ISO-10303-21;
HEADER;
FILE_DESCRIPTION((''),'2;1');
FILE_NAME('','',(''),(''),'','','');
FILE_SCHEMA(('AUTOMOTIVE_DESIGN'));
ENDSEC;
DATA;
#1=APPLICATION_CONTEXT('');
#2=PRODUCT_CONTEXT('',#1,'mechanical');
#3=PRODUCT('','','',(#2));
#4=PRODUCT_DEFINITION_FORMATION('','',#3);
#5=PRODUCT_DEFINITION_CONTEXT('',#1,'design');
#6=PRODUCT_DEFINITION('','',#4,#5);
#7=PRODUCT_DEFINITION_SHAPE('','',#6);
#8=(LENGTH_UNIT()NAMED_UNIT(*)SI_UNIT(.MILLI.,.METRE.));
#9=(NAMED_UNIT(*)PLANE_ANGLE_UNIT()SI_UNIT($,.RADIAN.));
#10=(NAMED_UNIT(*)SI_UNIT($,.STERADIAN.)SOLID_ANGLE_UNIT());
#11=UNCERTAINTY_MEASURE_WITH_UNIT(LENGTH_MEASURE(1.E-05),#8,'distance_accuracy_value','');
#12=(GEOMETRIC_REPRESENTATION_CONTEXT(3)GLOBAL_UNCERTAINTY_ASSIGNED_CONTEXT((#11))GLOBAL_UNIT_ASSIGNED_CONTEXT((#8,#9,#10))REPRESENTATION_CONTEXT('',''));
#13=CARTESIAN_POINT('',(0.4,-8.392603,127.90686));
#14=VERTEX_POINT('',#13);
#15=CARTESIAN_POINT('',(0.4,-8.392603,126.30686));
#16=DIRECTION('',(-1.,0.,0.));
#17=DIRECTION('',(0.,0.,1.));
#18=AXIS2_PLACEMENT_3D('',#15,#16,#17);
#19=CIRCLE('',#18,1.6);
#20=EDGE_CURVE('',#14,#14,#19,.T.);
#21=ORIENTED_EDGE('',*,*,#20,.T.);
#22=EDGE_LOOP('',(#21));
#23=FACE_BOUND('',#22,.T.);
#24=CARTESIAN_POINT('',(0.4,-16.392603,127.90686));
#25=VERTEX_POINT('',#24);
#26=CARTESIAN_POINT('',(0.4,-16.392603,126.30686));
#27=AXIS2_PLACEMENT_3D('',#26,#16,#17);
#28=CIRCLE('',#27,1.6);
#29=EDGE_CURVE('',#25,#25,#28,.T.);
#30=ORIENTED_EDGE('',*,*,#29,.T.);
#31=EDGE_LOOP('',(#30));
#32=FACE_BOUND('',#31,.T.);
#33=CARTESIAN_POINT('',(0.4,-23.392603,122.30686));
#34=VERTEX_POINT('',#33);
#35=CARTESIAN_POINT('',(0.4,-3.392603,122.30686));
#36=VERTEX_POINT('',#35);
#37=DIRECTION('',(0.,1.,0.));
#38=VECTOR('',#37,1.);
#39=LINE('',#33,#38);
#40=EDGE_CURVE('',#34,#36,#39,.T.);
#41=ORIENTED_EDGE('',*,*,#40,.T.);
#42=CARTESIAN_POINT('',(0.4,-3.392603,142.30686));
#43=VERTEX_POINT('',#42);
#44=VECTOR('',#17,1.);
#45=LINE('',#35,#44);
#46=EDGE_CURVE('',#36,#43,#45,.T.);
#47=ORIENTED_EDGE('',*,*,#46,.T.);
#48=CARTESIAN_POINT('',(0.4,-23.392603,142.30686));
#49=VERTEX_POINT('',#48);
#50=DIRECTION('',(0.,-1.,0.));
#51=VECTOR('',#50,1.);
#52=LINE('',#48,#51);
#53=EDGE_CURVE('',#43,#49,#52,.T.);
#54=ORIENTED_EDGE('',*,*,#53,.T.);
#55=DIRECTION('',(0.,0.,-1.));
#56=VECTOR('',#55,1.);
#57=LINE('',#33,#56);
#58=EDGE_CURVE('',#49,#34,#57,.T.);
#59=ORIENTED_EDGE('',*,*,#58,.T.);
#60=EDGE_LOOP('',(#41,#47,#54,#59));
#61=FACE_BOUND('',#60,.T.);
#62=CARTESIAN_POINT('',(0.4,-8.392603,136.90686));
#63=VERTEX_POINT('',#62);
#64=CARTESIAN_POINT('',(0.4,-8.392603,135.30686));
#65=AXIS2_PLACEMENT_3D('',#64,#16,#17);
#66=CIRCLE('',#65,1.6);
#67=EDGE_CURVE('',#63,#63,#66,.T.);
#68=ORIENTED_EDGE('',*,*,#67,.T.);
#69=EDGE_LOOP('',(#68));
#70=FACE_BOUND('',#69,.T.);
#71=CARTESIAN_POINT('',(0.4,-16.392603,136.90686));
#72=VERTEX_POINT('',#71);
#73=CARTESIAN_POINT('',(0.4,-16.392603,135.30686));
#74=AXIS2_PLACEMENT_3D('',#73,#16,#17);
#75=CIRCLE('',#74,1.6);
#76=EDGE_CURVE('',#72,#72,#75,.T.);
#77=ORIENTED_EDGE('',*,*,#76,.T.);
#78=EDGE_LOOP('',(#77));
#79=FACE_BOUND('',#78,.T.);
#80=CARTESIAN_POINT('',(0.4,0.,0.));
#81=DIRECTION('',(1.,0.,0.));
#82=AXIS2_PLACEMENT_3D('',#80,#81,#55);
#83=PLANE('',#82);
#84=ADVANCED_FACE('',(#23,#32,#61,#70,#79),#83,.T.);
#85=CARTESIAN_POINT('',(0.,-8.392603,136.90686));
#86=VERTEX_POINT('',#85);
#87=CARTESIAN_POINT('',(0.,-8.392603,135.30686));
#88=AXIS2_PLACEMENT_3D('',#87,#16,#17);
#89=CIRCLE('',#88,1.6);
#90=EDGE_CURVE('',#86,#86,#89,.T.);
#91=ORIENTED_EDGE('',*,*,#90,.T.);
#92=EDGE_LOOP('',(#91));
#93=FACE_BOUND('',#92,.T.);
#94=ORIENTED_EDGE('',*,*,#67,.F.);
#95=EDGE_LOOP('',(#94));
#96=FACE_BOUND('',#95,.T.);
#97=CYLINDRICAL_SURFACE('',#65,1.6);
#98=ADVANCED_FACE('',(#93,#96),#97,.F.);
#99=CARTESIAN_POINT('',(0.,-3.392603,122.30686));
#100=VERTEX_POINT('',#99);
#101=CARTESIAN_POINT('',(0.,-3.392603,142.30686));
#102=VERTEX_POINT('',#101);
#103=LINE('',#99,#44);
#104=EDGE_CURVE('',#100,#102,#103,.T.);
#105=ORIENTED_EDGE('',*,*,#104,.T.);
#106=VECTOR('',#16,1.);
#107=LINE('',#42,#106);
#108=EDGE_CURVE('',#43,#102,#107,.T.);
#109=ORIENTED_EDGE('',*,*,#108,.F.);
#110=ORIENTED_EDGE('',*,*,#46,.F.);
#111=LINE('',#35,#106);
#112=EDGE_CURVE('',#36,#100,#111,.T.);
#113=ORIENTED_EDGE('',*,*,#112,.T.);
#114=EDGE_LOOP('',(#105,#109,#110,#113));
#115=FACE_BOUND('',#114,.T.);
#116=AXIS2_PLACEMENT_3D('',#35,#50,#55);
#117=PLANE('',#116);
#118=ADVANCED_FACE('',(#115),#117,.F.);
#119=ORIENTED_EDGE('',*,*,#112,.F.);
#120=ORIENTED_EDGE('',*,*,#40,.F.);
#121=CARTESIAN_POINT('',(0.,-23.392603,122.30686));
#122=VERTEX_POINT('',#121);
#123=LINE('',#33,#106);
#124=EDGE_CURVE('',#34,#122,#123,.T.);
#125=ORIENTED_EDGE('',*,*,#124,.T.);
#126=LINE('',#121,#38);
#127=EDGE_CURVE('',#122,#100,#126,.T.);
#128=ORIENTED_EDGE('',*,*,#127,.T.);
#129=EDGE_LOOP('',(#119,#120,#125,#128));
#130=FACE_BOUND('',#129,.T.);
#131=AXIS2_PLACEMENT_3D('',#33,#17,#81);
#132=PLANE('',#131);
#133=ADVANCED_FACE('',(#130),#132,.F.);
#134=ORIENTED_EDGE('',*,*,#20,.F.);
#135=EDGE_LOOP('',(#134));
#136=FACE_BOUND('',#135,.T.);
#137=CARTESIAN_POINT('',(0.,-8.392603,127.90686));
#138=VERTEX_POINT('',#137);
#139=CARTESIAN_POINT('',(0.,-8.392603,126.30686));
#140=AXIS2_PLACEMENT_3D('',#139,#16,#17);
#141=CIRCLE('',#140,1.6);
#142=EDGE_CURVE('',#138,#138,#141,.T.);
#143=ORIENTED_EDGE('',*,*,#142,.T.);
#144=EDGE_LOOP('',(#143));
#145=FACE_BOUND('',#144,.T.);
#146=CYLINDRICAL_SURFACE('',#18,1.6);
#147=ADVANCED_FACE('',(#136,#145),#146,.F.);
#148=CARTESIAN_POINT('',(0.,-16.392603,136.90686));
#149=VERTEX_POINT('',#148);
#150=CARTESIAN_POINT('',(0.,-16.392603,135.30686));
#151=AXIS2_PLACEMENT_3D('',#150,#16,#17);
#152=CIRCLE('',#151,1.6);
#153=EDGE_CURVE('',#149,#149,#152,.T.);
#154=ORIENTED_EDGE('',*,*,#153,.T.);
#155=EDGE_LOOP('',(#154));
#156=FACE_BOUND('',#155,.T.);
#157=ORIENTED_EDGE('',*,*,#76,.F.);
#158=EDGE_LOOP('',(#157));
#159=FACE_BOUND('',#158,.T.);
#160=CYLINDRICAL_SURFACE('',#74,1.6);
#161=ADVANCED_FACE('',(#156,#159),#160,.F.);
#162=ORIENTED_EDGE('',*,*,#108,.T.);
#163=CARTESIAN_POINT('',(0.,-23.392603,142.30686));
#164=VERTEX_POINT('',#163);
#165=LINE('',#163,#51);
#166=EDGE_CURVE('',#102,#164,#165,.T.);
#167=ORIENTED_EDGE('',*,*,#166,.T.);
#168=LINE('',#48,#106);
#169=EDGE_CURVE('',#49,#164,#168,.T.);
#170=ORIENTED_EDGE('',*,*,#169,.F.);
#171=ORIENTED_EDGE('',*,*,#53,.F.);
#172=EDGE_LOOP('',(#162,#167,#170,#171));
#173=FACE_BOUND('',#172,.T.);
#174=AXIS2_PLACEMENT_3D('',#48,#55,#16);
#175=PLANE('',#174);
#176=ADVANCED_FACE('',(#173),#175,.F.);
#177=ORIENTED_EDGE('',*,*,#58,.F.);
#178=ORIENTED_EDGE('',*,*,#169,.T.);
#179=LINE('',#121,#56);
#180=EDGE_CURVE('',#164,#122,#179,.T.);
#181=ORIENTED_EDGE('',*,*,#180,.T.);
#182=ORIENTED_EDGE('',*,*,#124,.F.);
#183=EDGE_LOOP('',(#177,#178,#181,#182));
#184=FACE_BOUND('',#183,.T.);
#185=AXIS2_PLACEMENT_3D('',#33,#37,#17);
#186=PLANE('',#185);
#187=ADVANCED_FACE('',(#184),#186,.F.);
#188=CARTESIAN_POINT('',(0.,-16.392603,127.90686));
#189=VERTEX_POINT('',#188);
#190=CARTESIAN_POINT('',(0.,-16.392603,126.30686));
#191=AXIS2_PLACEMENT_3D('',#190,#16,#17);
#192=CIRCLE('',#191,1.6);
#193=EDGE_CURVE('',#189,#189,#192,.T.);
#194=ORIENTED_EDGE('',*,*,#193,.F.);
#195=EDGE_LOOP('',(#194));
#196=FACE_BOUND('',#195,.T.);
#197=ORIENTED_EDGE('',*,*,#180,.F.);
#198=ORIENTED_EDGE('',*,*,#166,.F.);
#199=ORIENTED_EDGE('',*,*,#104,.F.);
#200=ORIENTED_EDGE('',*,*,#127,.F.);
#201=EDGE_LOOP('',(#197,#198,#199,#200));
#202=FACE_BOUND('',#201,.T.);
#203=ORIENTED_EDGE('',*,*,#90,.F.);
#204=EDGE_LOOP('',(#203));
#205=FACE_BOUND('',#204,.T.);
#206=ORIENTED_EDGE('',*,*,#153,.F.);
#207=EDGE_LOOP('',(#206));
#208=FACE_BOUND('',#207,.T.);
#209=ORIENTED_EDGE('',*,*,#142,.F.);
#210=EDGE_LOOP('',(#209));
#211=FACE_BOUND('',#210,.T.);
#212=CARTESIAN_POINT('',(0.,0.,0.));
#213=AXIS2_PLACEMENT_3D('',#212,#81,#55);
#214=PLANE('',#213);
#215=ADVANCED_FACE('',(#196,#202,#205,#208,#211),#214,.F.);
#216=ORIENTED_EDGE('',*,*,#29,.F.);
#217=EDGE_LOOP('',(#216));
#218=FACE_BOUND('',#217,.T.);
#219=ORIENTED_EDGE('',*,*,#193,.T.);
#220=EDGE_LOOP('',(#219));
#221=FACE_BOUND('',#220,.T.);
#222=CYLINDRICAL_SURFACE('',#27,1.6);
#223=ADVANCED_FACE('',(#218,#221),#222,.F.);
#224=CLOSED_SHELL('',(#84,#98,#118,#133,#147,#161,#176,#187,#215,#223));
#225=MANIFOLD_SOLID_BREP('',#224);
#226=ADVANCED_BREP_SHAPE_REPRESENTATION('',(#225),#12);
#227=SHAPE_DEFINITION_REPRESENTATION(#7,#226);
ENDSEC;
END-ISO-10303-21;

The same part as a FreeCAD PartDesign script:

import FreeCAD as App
import Part
import Sketcher
from FreeCAD import Vector

doc = App.newDocument("Part")
body = doc.addObject("PartDesign::Body", "Body")

# Sketch on YZ plane
sketch1 = doc.addObject("Sketcher::SketchObject", "Sketch")
body.addObject(sketch1)
sketch1.AttachmentSupport = (doc.YZ_Plane, [""])
sketch1.MapMode = "FlatFace"
sketch1.addGeometry([
    Part.LineSegment(Vector(-3, 142, 0), Vector(-23, 142, 0)),
    Part.LineSegment(Vector(-23, 142, 0), Vector(-23, 122, 0)),
    Part.LineSegment(Vector(-23, 122, 0), Vector(-3, 122, 0)),
    Part.LineSegment(Vector(-3, 122, 0), Vector(-3, 142, 0)),
], False)
sketch1.addConstraint([
    Sketcher.Constraint("Coincident", 0, 2, 1, 1),
    Sketcher.Constraint("Coincident", 1, 2, 2, 1),
    Sketcher.Constraint("Coincident", 2, 2, 3, 1),
    Sketcher.Constraint("Coincident", 3, 2, 0, 1),
    Sketcher.Constraint("Horizontal", 0),
    Sketcher.Constraint("Vertical", 1),
    Sketcher.Constraint("Horizontal", 2),
    Sketcher.Constraint("Vertical", 3),
    Sketcher.Constraint("Equal", 2, 1),
    Sketcher.Constraint("DistanceX", 0, 2, 0, 1, 20.0),
    Sketcher.Constraint("DistanceY", -1, 1, 0, 2, 142.30686),
    Sketcher.Constraint("DistanceX", 0, 2, -1, 1, 23.392603),
])
pad1 = doc.addObject("PartDesign::Pad", "Pad")
body.addObject(pad1)
pad1.Profile = sketch1
pad1.Length = 0.4

# Sketch on YZ plane
sketch2 = doc.addObject("Sketcher::SketchObject", "Sketch001")
body.addObject(sketch2)
sketch2.AttachmentSupport = (doc.YZ_Plane, [""])
sketch2.MapMode = "FlatFace"
sketch2.addGeometry([
    Part.Circle(Vector(-8.4, 126.3, 0), Vector(0, 0, 1), 1.6),
    Part.Circle(Vector(-16.4, 126.3, 0), Vector(0, 0, 1), 1.6),
    Part.Circle(Vector(-8.4, 135.3, 0), Vector(0, 0, 1), 1.6),
    Part.Circle(Vector(-16.4, 135.3, 0), Vector(0, 0, 1), 1.6),
], False)
sketch2.addConstraint([
    Sketcher.Constraint("Equal", 0, 1),
    Sketcher.Constraint("Equal", 1, 2),
    Sketcher.Constraint("Equal", 2, 3),
    Sketcher.Constraint("Horizontal", 0, 3, 1, 3),
    Sketcher.Constraint("Horizontal", 2, 3, 3, 3),
    Sketcher.Constraint("Vertical", 0, 3, 2, 3),
    Sketcher.Constraint("Vertical", 1, 3, 3, 3),
    Sketcher.Constraint("Diameter", 0, 3.2),
    Sketcher.Constraint("DistanceX", 1, 3, 0, 3, 8.0),
    Sketcher.Constraint("DistanceY", 0, 3, 2, 3, 9.0),
    Sketcher.Constraint("DistanceY", -1, 1, 0, 3, 126.30686),
    Sketcher.Constraint("DistanceX", 0, 3, -1, 1, 8.392603),
])
pocket1 = doc.addObject("PartDesign::Pocket", "Pocket")
body.addObject(pocket1)
pocket1.Profile = sketch2
pocket1.Length = 0.4
pocket1.Reversed = True

doc.recompute()
